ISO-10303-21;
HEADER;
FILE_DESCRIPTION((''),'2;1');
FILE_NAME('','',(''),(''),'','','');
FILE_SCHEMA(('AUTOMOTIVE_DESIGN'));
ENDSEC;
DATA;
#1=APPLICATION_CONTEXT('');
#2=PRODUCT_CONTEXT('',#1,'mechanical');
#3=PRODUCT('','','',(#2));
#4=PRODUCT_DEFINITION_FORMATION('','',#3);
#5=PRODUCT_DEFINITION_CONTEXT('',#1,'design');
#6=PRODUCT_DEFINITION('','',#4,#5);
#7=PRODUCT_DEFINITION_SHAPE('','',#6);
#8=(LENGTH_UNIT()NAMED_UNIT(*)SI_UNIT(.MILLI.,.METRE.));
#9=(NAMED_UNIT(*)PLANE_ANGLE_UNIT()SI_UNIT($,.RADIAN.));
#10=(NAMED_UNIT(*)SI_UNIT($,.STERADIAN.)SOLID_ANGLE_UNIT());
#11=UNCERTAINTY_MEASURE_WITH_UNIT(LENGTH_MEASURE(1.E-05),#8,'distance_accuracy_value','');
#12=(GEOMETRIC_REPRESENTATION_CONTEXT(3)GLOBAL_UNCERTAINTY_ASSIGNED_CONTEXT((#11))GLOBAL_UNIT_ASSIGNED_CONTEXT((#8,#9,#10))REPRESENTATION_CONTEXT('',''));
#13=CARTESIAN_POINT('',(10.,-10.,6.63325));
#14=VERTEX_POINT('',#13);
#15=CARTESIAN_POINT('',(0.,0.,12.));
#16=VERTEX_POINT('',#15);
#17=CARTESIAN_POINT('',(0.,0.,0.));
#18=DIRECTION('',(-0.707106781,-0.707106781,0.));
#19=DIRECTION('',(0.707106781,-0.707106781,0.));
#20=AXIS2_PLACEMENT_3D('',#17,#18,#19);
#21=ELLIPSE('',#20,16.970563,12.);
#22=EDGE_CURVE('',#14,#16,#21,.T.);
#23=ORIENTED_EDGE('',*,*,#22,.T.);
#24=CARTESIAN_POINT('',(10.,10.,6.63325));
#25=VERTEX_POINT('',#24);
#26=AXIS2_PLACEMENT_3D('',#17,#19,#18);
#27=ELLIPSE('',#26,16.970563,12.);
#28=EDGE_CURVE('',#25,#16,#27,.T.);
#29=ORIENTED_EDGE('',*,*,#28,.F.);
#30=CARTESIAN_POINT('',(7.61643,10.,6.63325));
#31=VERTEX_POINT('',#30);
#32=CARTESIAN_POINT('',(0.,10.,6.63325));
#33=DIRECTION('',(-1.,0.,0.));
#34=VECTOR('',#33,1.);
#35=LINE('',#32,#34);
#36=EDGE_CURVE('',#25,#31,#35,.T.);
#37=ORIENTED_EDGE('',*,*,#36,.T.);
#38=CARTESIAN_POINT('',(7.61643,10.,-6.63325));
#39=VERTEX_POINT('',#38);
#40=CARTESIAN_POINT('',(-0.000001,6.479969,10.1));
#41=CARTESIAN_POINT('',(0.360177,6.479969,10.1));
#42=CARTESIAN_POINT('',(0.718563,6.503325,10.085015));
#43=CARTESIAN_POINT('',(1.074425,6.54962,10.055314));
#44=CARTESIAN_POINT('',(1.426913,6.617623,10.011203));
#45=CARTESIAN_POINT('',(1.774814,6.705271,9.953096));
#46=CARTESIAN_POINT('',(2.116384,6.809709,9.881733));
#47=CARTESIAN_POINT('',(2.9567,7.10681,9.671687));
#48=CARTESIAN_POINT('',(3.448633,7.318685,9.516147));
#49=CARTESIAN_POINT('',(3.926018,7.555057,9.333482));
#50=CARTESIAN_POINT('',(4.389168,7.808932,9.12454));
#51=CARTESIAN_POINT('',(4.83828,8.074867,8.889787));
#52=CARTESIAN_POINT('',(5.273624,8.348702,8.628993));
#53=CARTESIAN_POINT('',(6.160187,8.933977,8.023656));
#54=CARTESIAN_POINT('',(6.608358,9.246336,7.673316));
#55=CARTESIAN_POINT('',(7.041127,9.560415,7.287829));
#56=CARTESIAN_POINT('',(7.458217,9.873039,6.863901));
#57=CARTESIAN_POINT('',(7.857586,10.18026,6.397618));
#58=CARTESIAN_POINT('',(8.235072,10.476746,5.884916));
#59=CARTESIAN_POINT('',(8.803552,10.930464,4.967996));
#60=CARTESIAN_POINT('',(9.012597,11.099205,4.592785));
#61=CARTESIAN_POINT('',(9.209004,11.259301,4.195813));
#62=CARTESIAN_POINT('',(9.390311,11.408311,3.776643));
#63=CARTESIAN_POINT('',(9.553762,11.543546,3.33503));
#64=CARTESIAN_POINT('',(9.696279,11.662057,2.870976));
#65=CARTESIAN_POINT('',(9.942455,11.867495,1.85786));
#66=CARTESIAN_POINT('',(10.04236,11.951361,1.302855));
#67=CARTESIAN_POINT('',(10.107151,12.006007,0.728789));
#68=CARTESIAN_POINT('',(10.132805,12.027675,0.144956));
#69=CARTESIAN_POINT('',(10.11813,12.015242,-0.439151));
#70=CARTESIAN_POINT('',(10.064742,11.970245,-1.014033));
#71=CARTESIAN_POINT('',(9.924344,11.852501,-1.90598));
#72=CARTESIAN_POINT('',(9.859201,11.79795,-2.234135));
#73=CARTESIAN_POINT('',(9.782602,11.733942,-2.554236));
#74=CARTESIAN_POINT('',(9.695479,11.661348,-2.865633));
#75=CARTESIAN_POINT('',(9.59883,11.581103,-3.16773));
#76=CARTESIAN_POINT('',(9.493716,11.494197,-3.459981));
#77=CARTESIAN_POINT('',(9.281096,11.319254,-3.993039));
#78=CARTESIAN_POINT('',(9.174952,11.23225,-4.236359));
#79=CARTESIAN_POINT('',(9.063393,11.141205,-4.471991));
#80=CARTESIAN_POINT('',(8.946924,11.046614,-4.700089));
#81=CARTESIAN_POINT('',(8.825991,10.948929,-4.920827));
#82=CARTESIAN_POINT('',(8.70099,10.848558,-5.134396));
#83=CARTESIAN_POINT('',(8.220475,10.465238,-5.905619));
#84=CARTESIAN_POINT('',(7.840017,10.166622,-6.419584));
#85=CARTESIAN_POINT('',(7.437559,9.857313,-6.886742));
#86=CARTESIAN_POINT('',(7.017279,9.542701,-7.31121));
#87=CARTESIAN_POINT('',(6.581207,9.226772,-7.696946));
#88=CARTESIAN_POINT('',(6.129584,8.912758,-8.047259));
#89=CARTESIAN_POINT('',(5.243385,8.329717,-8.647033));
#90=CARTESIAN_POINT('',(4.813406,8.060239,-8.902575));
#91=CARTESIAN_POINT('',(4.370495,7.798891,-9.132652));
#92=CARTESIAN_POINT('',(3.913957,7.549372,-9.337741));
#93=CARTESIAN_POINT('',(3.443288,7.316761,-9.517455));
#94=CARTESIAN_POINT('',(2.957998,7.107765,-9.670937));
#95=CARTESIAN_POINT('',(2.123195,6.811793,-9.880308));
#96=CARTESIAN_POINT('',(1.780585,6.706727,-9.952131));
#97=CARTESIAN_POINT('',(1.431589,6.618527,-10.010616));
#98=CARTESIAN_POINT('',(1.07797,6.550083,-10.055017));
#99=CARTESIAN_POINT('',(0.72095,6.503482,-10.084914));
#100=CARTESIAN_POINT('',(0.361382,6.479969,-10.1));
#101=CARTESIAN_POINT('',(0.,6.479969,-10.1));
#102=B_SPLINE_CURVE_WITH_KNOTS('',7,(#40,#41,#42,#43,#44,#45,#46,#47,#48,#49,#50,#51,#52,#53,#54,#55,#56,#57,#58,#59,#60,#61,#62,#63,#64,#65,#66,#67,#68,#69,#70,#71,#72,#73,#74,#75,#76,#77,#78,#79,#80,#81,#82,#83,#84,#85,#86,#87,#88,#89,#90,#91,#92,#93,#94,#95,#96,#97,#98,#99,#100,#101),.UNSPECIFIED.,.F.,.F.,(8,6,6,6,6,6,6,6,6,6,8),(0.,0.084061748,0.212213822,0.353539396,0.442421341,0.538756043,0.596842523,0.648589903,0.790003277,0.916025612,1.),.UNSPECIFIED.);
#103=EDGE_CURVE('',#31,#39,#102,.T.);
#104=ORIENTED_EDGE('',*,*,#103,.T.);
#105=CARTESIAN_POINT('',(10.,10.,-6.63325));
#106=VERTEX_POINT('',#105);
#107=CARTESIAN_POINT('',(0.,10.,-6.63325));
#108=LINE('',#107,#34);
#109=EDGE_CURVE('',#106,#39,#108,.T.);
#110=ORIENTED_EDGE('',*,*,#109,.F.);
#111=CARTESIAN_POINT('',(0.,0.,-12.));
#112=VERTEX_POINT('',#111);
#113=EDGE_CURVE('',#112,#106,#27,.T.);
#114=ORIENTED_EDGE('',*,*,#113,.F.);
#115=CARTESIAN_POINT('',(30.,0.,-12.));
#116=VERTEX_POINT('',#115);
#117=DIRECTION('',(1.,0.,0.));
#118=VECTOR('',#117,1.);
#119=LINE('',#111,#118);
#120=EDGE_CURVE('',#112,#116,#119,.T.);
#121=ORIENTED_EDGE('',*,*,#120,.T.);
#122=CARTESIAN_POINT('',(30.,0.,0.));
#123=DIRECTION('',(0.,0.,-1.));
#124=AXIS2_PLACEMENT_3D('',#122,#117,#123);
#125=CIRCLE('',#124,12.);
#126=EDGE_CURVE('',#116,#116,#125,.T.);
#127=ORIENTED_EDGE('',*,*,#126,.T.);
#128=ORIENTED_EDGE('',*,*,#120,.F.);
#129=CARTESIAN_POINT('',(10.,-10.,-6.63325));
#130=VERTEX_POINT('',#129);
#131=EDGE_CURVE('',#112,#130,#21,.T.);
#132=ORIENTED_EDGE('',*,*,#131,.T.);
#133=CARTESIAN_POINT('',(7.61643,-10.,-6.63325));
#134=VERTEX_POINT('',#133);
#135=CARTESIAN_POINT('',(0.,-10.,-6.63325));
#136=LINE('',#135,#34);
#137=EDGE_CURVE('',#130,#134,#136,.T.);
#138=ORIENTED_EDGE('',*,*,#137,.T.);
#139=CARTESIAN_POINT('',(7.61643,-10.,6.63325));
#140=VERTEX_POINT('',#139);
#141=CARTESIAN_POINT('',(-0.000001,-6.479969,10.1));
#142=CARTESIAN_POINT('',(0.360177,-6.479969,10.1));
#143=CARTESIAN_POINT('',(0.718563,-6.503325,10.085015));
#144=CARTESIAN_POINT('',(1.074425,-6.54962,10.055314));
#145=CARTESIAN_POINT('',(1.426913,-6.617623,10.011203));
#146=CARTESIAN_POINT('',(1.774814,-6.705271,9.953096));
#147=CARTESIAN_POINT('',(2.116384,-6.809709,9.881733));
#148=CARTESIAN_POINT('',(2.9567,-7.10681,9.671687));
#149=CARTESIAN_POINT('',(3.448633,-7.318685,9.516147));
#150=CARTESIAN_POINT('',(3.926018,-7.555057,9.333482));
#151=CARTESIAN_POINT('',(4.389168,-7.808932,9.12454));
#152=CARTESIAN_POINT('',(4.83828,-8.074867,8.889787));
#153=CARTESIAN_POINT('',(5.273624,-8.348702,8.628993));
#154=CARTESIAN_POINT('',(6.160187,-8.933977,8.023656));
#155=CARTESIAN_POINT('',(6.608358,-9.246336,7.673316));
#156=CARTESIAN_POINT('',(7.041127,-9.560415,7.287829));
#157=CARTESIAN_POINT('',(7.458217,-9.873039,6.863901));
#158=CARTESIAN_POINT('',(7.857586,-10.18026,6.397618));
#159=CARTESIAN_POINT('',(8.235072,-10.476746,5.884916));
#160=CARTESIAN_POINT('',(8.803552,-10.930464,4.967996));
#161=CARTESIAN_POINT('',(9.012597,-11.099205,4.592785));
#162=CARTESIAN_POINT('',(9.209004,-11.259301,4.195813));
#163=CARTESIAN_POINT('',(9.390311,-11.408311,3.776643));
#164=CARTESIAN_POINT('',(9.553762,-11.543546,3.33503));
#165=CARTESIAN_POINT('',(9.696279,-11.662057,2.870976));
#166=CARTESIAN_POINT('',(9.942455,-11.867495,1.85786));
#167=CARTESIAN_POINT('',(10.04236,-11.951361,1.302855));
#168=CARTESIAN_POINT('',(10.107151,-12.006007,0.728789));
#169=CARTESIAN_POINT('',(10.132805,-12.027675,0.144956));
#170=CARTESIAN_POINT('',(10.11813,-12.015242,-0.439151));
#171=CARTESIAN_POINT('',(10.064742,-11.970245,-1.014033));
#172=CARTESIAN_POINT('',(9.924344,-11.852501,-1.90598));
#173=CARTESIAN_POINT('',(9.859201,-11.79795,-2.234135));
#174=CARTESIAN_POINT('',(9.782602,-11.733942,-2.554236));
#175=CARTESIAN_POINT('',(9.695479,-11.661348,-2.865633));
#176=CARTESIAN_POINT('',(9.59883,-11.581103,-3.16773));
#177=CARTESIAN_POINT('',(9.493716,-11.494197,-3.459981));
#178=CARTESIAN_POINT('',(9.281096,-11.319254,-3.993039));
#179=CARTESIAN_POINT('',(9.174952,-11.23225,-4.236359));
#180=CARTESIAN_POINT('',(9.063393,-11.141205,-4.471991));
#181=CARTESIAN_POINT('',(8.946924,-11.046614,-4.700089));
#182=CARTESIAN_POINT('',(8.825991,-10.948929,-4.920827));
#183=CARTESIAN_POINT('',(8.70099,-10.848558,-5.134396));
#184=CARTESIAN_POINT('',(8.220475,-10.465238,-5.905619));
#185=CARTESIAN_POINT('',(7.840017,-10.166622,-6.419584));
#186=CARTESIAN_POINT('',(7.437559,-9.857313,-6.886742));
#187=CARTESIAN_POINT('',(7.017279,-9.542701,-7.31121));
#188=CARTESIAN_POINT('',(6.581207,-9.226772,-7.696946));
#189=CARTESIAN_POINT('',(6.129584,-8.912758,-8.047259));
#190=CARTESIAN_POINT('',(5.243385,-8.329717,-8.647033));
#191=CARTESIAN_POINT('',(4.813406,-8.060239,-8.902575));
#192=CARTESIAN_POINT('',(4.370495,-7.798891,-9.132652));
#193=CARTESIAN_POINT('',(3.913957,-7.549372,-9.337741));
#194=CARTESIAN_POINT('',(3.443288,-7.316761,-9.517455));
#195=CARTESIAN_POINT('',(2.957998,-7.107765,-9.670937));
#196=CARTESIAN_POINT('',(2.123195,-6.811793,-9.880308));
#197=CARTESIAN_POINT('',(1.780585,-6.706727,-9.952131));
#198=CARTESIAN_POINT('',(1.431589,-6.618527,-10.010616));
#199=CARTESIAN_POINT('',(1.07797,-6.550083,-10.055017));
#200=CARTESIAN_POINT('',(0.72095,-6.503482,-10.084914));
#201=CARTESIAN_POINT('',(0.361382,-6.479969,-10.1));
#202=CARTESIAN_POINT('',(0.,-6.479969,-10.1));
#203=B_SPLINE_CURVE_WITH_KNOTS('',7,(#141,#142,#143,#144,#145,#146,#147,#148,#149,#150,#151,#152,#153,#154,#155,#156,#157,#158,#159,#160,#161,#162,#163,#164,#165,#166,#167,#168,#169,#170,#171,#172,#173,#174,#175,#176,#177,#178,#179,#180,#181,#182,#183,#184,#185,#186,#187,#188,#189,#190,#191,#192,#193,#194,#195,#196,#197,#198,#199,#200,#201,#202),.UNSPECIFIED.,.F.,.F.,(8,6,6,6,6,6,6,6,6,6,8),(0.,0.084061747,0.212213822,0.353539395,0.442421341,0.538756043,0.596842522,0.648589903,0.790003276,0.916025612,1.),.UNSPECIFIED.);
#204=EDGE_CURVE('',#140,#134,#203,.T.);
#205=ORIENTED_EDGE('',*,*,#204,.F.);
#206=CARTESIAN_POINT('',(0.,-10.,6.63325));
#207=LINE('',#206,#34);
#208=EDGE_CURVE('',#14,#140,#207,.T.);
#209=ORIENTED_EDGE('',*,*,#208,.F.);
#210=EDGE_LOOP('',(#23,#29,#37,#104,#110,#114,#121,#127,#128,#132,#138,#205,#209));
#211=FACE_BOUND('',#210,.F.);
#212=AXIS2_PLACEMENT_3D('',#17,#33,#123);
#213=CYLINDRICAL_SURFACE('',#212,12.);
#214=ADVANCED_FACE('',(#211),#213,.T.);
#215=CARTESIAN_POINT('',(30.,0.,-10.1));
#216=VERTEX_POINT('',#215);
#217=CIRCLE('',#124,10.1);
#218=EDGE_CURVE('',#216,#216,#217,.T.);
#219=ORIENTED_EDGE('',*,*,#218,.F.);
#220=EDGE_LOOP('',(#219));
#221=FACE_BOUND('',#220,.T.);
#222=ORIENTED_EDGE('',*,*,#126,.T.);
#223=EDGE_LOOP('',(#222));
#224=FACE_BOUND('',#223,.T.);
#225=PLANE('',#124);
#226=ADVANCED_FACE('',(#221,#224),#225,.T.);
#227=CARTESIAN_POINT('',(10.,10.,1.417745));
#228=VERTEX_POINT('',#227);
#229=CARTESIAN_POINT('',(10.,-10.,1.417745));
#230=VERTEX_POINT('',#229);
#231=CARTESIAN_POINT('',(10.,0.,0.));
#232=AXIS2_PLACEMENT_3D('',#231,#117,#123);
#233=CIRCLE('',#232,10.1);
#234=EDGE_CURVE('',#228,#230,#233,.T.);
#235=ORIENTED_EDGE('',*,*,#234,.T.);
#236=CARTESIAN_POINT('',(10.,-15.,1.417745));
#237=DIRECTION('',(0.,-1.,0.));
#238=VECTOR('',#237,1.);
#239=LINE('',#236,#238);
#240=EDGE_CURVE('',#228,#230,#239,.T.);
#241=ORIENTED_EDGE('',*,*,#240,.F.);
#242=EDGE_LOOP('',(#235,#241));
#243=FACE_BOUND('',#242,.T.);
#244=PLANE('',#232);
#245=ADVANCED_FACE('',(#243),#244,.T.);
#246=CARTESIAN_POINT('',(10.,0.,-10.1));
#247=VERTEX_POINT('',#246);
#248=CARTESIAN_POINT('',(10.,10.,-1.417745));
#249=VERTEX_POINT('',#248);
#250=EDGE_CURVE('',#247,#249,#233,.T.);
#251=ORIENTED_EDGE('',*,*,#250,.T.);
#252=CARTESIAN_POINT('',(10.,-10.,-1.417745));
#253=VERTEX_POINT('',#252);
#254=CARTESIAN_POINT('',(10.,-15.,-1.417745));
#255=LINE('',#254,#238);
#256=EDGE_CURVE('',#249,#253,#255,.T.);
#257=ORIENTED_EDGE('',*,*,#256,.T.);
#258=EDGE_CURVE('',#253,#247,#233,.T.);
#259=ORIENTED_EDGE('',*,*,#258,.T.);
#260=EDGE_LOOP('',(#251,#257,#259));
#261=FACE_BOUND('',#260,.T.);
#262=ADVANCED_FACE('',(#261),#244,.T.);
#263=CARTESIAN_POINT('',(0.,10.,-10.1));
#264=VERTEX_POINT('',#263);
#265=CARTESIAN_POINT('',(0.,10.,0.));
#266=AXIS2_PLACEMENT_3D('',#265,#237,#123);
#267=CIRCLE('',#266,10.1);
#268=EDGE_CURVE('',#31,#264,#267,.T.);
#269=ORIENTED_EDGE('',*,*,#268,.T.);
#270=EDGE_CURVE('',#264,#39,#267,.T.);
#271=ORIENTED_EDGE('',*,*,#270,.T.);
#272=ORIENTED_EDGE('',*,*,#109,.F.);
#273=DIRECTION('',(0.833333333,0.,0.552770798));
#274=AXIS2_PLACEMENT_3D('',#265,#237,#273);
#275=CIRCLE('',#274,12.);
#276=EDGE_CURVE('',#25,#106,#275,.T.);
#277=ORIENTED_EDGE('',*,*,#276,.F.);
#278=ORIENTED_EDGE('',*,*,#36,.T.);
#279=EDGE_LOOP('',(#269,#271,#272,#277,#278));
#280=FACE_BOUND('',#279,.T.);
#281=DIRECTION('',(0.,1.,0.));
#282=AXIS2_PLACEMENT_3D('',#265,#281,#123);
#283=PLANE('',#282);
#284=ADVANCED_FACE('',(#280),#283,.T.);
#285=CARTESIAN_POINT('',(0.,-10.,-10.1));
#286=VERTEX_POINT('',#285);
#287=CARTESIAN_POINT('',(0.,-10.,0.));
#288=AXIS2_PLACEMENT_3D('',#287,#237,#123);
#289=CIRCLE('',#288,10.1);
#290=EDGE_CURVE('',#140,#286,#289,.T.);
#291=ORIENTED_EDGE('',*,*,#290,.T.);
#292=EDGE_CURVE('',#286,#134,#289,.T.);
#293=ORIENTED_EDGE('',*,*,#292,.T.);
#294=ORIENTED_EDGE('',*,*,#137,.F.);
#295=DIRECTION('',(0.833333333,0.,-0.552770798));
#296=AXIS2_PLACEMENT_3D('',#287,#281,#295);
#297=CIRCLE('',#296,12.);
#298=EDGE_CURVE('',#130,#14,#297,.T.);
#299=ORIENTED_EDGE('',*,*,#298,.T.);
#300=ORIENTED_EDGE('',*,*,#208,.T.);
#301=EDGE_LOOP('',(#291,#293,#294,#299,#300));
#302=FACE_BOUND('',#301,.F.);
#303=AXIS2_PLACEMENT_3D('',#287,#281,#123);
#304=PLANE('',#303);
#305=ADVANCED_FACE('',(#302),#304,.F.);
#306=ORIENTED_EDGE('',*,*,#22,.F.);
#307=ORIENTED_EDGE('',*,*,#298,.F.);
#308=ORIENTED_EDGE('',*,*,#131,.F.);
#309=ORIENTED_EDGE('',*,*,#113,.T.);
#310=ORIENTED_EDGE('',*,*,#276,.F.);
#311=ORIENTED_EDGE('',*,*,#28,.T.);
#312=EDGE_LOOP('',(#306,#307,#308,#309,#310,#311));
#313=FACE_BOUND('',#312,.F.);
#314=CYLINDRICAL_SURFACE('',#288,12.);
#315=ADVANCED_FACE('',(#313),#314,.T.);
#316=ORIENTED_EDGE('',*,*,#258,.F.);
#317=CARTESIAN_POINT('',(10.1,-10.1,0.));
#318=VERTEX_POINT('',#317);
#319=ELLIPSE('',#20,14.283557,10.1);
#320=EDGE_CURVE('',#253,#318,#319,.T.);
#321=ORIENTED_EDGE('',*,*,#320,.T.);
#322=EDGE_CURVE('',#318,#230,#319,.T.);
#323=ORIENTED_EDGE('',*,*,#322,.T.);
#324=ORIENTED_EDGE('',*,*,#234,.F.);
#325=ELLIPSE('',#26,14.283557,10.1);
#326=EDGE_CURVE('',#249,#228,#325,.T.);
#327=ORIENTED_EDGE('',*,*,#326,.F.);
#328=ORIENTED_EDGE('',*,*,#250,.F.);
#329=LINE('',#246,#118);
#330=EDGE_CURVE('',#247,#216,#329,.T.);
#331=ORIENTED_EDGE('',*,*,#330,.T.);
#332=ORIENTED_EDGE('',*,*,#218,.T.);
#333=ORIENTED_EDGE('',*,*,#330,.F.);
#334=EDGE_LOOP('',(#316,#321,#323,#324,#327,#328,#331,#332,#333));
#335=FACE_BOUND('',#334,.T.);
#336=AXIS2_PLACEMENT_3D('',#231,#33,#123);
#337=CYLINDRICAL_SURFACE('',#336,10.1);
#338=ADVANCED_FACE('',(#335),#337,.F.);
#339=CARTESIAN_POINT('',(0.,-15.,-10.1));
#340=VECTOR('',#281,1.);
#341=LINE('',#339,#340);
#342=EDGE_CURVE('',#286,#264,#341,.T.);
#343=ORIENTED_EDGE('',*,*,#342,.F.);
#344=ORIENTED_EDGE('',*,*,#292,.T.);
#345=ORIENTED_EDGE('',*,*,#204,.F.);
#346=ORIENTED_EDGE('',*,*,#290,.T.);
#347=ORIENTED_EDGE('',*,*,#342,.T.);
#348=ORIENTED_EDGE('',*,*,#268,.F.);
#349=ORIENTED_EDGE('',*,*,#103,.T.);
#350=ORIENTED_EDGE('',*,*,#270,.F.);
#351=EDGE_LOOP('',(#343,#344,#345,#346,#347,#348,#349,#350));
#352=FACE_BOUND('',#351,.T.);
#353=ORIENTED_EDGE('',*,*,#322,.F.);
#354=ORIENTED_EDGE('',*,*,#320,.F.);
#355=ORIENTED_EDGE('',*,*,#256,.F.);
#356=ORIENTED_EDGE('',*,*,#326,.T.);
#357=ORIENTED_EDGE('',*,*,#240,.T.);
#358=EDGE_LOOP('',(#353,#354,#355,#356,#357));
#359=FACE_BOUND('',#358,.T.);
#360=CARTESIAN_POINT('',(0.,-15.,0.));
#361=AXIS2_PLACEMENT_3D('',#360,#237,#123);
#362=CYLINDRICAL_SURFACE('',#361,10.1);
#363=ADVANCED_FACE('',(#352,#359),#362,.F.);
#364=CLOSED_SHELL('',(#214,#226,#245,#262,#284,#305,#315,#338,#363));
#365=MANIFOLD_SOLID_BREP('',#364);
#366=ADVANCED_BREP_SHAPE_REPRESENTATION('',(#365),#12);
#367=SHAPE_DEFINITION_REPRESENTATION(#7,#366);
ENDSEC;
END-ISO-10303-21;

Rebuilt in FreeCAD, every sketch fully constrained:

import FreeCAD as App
import Part
import Sketcher
from FreeCAD import Vector
Q = App.Units.Quantity

doc = App.newDocument("Part")
body = doc.addObject("PartDesign::Body", "Body")

# Sketch on XY plane
sketch1 = body.newObject("Sketcher::SketchObject", "Sketch")
sketch1.AttachmentSupport = (doc.getObject("XY_Plane"), [""])
sketch1.MapMode = "FlatFace"
sketch1.addGeometry(Part.Circle(Vector(0, 0, 0), Vector(0, 0, 1), 10), False)
sketch1.addConstraint(Sketcher.Constraint("Coincident", 0, 3, -1, 1))
sketch1.addConstraint(Sketcher.Constraint("Diameter", 0, Q("20.2 mm")))
pad1 = body.newObject("PartDesign::Pad", "Pad")
pad1.Profile = sketch1
pad1.Length = 20
body2 = doc.addObject("PartDesign::Body", "Body001")
doc.recompute()

body.Placement = App.Placement(Vector(0, 0, 0), App.Rotation(Vector(0, 1, 0), 90))
boolean = body2.newObject("PartDesign::Boolean", "Boolean")
boolean.Type = "Fuse"
boolean.addObjects([body])
body3 = doc.addObject("PartDesign::Body", "Body002")
doc.recompute()

body2.Placement = App.Placement(Vector(10, 0, 0), App.Rotation(Vector(0, 0, 1), 0))
boolean2 = body3.newObject("PartDesign::Boolean", "Boolean001")
boolean2.Type = "Fuse"
boolean2.addObjects([body2])
body4 = doc.addObject("PartDesign::Body", "Body003")

# Sketch on XZ plane
sketch2 = body4.newObject("Sketcher::SketchObject", "Sketch001")
sketch2.AttachmentSupport = (doc.getObject("XZ_Plane003"), [""])
sketch2.MapMode = "FlatFace"
sketch2.AttachmentOffset = App.Placement(Vector(0, 0, 15), App.Rotation())
sketch2.addGeometry(Part.Circle(Vector(0, 0, 0), Vector(0, 0, 1), 10), False)
sketch2.addConstraint(Sketcher.Constraint("Coincident", 0, 3, -1, 1))
sketch2.addConstraint(Sketcher.Constraint("Diameter", 0, Q("20.2 mm")))
pad2 = body4.newObject("PartDesign::Pad", "Pad001")
pad2.Profile = sketch2
pad2.Length = 30
pad2.Reversed = True
doc.recompute()

boolean3 = body4.newObject("PartDesign::Boolean", "Boolean002")
boolean3.Type = "Fuse"
boolean3.addObjects([body3])
body5 = doc.addObject("PartDesign::Body", "Body004")

# Sketch on XY plane
sketch3 = body5.newObject("Sketcher::SketchObject", "Sketch002")
sketch3.AttachmentSupport = (doc.getObject("XY_Plane004"), [""])
sketch3.MapMode = "FlatFace"
sketch3.addGeometry(Part.Circle(Vector(0, 0, 0), Vector(0, 0, 1), 12), False)
sketch3.addConstraint(Sketcher.Constraint("Coincident", 0, 3, -1, 1))
sketch3.addConstraint(Sketcher.Constraint("Diameter", 0, Q("24 mm")))
pad3 = body5.newObject("PartDesign::Pad", "Pad002")
pad3.Profile = sketch3
pad3.Length = 30
body6 = doc.addObject("PartDesign::Body", "Body005")
doc.recompute()

body5.Placement = App.Placement(Vector(0, 0, 0), App.Rotation(Vector(0, 1, 0), 90))
boolean4 = body6.newObject("PartDesign::Boolean", "Boolean003")
boolean4.Type = "Fuse"
boolean4.addObjects([body5])
body7 = doc.addObject("PartDesign::Body", "Body006")

# Sketch on XZ plane
sketch4 = body7.newObject("Sketcher::SketchObject", "Sketch003")
sketch4.AttachmentSupport = (doc.getObject("XZ_Plane006"), [""])
sketch4.MapMode = "FlatFace"
sketch4.AttachmentOffset = App.Placement(Vector(0, 0, 10), App.Rotation())
sketch4.addGeometry(Part.Circle(Vector(0, 0, 0), Vector(0, 0, 1), 12), False)
sketch4.addConstraint(Sketcher.Constraint("Coincident", 0, 3, -1, 1))
sketch4.addConstraint(Sketcher.Constraint("Diameter", 0, Q("24 mm")))
pad4 = body7.newObject("PartDesign::Pad", "Pad003")
pad4.Profile = sketch4
pad4.Length = 20
pad4.Reversed = True
doc.recompute()

boolean5 = body7.newObject("PartDesign::Boolean", "Boolean004")
boolean5.Type = "Fuse"
boolean5.addObjects([body6])
doc.recompute()

boolean6 = body7.newObject("PartDesign::Boolean", "Boolean005")
boolean6.Type = "Cut"
boolean6.addObjects([body4])

doc.recompute()
